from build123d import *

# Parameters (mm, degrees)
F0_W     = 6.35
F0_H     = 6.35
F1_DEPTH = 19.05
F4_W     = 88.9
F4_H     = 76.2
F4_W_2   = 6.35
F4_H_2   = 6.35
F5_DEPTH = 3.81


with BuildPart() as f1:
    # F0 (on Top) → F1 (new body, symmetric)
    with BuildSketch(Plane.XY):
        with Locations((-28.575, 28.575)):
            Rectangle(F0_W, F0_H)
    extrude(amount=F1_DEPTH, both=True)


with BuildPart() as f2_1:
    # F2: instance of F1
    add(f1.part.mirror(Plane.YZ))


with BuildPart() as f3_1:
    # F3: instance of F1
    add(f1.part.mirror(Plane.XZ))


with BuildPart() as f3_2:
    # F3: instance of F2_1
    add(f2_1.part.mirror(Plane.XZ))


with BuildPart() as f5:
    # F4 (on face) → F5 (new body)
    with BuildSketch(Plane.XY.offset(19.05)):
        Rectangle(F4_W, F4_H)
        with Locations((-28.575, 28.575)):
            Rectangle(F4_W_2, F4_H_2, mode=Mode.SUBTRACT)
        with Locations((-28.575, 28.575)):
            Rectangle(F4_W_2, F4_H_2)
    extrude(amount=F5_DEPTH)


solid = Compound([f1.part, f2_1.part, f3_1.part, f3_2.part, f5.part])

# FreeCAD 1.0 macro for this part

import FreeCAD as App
import Part
import Sketcher

V = App.Vector
Q = App.Units.Quantity

doc = App.newDocument("Part")
body = doc.addObject("PartDesign::Body", "Body")

# Sketch on XY plane
sketch1 = doc.addObject("Sketcher::SketchObject", "Sketch")
body.addObject(sketch1)
sketch1.AttachmentSupport = (doc.XY_Plane, [""])
sketch1.MapMode = "FlatFace"
sketch1.addGeometry([
    Part.LineSegment(V(-32, 32, 0), V(-32, 25, 0)),
    Part.LineSegment(V(-32, 25, 0), V(-25, 25, 0)),
    Part.LineSegment(V(-25, 25, 0), V(-25, 32, 0)),
    Part.LineSegment(V(-25, 32, 0), V(-32, 32, 0)),
], False)
sketch1.addConstraint([
    Sketcher.Constraint("Coincident", 0, 2, 1, 1),
    Sketcher.Constraint("Coincident", 1, 2, 2, 1),
    Sketcher.Constraint("Coincident", 2, 2, 3, 1),
    Sketcher.Constraint("Coincident", 3, 2, 0, 1),
    Sketcher.Constraint("Vertical", 0),
    Sketcher.Constraint("Horizontal", 1),
    Sketcher.Constraint("Vertical", 2),
    Sketcher.Constraint("Horizontal", 3),
    Sketcher.Constraint("Equal", 3, 0),
    Sketcher.Constraint("DistanceY", -1, 1, 0, 2, Q("1 in")),
    Sketcher.Constraint("DistanceX", 1, 2, -1, 1, Q("1 in")),
    Sketcher.Constraint("DistanceX", 1, 1, 1, 2, Q("0.25 in")),
])
pad1 = doc.addObject("PartDesign::Pad", "Pad")
body.addObject(pad1)
pad1.Profile = sketch1
pad1.Length = Q("1.5 in")
pad1.Midplane = True
body2 = doc.addObject("PartDesign::Body", "Body001")
doc.recompute()

mirroring = doc.addObject("Part::Mirroring", "Mirroring")
mirroring.Source = body
mirroring.Base = V(0, 0, 0)
mirroring.Normal = V(1, 0, 0)
body2.BaseFeature = mirroring
doc.recompute()
body3 = doc.addObject("PartDesign::Body", "Body002")
doc.recompute()

mirroring2 = doc.addObject("Part::Mirroring", "Mirroring001")
mirroring2.Source = body
mirroring2.Base = V(0, 0, 0)
mirroring2.Normal = V(0, -1, 0)
body3.BaseFeature = mirroring2
doc.recompute()
body4 = doc.addObject("PartDesign::Body", "Body003")
doc.recompute()

mirroring3 = doc.addObject("Part::Mirroring", "Mirroring002")
mirroring3.Source = body2
mirroring3.Base = V(0, 0, 0)
mirroring3.Normal = V(0, -1, 0)
body4.BaseFeature = mirroring3
doc.recompute()
body5 = doc.addObject("PartDesign::Body", "Body004")

# Sketch on XY plane
sketch2 = doc.addObject("Sketcher::SketchObject", "Sketch001")
body5.addObject(sketch2)
sketch2.AttachmentSupport = (doc.getObject("XY_Plane004"), [""])
sketch2.MapMode = "FlatFace"
sketch2.AttachmentOffset = App.Placement(V(0, 0, 0.75 * 25.4), App.Rotation())
sketch2.addGeometry([
    Part.LineSegment(V(-44, 38, 0), V(-44, -38, 0)),
    Part.LineSegment(V(-44, -38, 0), V(44, -38, 0)),
    Part.LineSegment(V(44, -38, 0), V(44, 38, 0)),
    Part.LineSegment(V(44, 38, 0), V(-44, 38, 0)),
], False)
sketch2.addConstraint([
    Sketcher.Constraint("Coincident", 0, 2, 1, 1),
    Sketcher.Constraint("Coincident", 1, 2, 2, 1),
    Sketcher.Constraint("Coincident", 2, 2, 3, 1),
    Sketcher.Constraint("Coincident", 3, 2, 0, 1),
    Sketcher.Constraint("Vertical", 0),
    Sketcher.Constraint("Horizontal", 1),
    Sketcher.Constraint("Vertical", 2),
    Sketcher.Constraint("Horizontal", 3),
    Sketcher.Constraint("Symmetric", 0, 2, 2, 2, -1, 1),
    Sketcher.Constraint("DistanceY", 0, 2, 0, 1, Q("3 in")),
    Sketcher.Constraint("DistanceX", 1, 1, 1, 2, Q("3.5 in")),
])
pad2 = doc.addObject("PartDesign::Pad", "Pad001")
body5.addObject(pad2)
pad2.Profile = sketch2
pad2.Length = Q("0.15 in")
mirroring.Visibility = False
mirroring2.Visibility = False
mirroring3.Visibility = False

doc.recompute()
